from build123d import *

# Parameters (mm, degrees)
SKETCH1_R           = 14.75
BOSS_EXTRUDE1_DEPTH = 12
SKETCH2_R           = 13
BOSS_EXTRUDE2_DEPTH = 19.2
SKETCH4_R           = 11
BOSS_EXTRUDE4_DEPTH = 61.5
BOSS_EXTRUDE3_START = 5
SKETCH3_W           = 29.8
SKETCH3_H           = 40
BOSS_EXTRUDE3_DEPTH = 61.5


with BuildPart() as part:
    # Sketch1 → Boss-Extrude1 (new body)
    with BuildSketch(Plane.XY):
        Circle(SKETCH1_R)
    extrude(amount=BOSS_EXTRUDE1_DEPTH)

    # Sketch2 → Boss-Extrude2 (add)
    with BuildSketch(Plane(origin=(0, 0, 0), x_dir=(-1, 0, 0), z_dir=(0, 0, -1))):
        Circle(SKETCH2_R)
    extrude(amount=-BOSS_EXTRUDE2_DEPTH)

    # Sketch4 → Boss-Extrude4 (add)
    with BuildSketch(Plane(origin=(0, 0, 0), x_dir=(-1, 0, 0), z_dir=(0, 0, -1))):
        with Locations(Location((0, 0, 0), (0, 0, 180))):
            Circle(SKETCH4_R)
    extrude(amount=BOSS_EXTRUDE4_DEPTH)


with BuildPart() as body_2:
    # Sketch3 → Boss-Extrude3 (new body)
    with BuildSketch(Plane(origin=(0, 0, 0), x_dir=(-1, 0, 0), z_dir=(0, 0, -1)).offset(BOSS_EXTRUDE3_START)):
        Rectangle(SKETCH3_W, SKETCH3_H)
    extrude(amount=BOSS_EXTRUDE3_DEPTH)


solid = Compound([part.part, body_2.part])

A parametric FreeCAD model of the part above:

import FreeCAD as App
import Part
import Sketcher
Q = App.Units.Quantity


def add_polygon(sketch, points):
    """Adds a closed chain of lines whose ends are joined by coincident constraints."""
    first, n = sketch.GeometryCount, len(points)
    for a, b in zip(points, points[1:] + points[:1]):
        sketch.addGeometry(Part.LineSegment(App.Vector(*a, 0), App.Vector(*b, 0)), False)
    for i in range(n):
        sketch.addConstraint(Sketcher.Constraint("Coincident", first + i, 2, first + (i + 1) % n, 1))

doc = App.newDocument("Part")
body = doc.addObject("PartDesign::Body", "Body")

# Sketch on XY plane
sketch1 = body.newObject("Sketcher::SketchObject", "Sketch")
sketch1.AttachmentSupport = (doc.getObject("XY_Plane"), [""])
sketch1.MapMode = "FlatFace"
sketch1.addGeometry(Part.Circle(App.Vector(0, 0, 0), App.Vector(0, 0, 1), 15), False)
sketch1.addConstraint([
    Sketcher.Constraint("Coincident", 0, 3, -1, 1),
    Sketcher.Constraint("Diameter", 0, Q("29.5 mm")),
])
pad1 = body.newObject("PartDesign::Pad", "Pad")
pad1.Profile = sketch1
pad1.Length = 12

# Sketch on XY plane
sketch2 = body.newObject("Sketcher::SketchObject", "Sketch001")
sketch2.AttachmentSupport = (doc.getObject("XY_Plane"), [""])
sketch2.MapMode = "FlatFace"
sketch2.addGeometry(Part.Circle(App.Vector(0, 0, 0), App.Vector(0, 0, 1), 13), False)
sketch2.addConstraint([
    Sketcher.Constraint("Coincident", 0, 3, -1, 1),
    Sketcher.Constraint("Diameter", 0, Q("26 mm")),
])
pad2 = body.newObject("PartDesign::Pad", "Pad001")
pad2.Profile = sketch2
pad2.Length = 19.2

# Sketch on XY plane
sketch3 = body.newObject("Sketcher::SketchObject", "Sketch002")
sketch3.AttachmentSupport = (doc.getObject("XY_Plane"), [""])
sketch3.MapMode = "FlatFace"
sketch3.addGeometry(Part.Circle(App.Vector(0, 0, 0), App.Vector(0, 0, 1), 11), False)
sketch3.addConstraint([
    Sketcher.Constraint("Coincident", 0, 3, -1, 1),
    Sketcher.Constraint("Diameter", 0, Q("22 mm")),
])
pad3 = body.newObject("PartDesign::Pad", "Pad002")
pad3.Profile = sketch3
pad3.Length = 61.5
pad3.Reversed = True
body2 = doc.addObject("PartDesign::Body", "Body001")

# Sketch on XY plane
sketch4 = body2.newObject("Sketcher::SketchObject", "Sketch003")
sketch4.AttachmentSupport = (doc.getObject("XY_Plane001"), [""])
sketch4.MapMode = "FlatFace"
sketch4.AttachmentOffset = App.Placement(App.Vector(0, 0, -5), App.Rotation())
add_polygon(sketch4, [(15, 20), (15, -20), (-15, -20), (-15, 20)])  # lines 0-3
sketch4.addConstraint([
    Sketcher.Constraint("Vertical", 0),
    Sketcher.Constraint("Horizontal", 1),
    Sketcher.Constraint("Vertical", 2),
    Sketcher.Constraint("Horizontal", 3),
    Sketcher.Constraint("Symmetric", 0, 2, 2, 2, -1, 1),
    Sketcher.Constraint("DistanceY", 0, 2, 0, 1, Q("40 mm")),
    Sketcher.Constraint("DistanceX", 1, 2, 1, 1, Q("29.8 mm")),
])
pad4 = body2.newObject("PartDesign::Pad", "Pad003")
pad4.Profile = sketch4
pad4.Length = 61.5
pad4.Reversed = True

doc.recompute()
